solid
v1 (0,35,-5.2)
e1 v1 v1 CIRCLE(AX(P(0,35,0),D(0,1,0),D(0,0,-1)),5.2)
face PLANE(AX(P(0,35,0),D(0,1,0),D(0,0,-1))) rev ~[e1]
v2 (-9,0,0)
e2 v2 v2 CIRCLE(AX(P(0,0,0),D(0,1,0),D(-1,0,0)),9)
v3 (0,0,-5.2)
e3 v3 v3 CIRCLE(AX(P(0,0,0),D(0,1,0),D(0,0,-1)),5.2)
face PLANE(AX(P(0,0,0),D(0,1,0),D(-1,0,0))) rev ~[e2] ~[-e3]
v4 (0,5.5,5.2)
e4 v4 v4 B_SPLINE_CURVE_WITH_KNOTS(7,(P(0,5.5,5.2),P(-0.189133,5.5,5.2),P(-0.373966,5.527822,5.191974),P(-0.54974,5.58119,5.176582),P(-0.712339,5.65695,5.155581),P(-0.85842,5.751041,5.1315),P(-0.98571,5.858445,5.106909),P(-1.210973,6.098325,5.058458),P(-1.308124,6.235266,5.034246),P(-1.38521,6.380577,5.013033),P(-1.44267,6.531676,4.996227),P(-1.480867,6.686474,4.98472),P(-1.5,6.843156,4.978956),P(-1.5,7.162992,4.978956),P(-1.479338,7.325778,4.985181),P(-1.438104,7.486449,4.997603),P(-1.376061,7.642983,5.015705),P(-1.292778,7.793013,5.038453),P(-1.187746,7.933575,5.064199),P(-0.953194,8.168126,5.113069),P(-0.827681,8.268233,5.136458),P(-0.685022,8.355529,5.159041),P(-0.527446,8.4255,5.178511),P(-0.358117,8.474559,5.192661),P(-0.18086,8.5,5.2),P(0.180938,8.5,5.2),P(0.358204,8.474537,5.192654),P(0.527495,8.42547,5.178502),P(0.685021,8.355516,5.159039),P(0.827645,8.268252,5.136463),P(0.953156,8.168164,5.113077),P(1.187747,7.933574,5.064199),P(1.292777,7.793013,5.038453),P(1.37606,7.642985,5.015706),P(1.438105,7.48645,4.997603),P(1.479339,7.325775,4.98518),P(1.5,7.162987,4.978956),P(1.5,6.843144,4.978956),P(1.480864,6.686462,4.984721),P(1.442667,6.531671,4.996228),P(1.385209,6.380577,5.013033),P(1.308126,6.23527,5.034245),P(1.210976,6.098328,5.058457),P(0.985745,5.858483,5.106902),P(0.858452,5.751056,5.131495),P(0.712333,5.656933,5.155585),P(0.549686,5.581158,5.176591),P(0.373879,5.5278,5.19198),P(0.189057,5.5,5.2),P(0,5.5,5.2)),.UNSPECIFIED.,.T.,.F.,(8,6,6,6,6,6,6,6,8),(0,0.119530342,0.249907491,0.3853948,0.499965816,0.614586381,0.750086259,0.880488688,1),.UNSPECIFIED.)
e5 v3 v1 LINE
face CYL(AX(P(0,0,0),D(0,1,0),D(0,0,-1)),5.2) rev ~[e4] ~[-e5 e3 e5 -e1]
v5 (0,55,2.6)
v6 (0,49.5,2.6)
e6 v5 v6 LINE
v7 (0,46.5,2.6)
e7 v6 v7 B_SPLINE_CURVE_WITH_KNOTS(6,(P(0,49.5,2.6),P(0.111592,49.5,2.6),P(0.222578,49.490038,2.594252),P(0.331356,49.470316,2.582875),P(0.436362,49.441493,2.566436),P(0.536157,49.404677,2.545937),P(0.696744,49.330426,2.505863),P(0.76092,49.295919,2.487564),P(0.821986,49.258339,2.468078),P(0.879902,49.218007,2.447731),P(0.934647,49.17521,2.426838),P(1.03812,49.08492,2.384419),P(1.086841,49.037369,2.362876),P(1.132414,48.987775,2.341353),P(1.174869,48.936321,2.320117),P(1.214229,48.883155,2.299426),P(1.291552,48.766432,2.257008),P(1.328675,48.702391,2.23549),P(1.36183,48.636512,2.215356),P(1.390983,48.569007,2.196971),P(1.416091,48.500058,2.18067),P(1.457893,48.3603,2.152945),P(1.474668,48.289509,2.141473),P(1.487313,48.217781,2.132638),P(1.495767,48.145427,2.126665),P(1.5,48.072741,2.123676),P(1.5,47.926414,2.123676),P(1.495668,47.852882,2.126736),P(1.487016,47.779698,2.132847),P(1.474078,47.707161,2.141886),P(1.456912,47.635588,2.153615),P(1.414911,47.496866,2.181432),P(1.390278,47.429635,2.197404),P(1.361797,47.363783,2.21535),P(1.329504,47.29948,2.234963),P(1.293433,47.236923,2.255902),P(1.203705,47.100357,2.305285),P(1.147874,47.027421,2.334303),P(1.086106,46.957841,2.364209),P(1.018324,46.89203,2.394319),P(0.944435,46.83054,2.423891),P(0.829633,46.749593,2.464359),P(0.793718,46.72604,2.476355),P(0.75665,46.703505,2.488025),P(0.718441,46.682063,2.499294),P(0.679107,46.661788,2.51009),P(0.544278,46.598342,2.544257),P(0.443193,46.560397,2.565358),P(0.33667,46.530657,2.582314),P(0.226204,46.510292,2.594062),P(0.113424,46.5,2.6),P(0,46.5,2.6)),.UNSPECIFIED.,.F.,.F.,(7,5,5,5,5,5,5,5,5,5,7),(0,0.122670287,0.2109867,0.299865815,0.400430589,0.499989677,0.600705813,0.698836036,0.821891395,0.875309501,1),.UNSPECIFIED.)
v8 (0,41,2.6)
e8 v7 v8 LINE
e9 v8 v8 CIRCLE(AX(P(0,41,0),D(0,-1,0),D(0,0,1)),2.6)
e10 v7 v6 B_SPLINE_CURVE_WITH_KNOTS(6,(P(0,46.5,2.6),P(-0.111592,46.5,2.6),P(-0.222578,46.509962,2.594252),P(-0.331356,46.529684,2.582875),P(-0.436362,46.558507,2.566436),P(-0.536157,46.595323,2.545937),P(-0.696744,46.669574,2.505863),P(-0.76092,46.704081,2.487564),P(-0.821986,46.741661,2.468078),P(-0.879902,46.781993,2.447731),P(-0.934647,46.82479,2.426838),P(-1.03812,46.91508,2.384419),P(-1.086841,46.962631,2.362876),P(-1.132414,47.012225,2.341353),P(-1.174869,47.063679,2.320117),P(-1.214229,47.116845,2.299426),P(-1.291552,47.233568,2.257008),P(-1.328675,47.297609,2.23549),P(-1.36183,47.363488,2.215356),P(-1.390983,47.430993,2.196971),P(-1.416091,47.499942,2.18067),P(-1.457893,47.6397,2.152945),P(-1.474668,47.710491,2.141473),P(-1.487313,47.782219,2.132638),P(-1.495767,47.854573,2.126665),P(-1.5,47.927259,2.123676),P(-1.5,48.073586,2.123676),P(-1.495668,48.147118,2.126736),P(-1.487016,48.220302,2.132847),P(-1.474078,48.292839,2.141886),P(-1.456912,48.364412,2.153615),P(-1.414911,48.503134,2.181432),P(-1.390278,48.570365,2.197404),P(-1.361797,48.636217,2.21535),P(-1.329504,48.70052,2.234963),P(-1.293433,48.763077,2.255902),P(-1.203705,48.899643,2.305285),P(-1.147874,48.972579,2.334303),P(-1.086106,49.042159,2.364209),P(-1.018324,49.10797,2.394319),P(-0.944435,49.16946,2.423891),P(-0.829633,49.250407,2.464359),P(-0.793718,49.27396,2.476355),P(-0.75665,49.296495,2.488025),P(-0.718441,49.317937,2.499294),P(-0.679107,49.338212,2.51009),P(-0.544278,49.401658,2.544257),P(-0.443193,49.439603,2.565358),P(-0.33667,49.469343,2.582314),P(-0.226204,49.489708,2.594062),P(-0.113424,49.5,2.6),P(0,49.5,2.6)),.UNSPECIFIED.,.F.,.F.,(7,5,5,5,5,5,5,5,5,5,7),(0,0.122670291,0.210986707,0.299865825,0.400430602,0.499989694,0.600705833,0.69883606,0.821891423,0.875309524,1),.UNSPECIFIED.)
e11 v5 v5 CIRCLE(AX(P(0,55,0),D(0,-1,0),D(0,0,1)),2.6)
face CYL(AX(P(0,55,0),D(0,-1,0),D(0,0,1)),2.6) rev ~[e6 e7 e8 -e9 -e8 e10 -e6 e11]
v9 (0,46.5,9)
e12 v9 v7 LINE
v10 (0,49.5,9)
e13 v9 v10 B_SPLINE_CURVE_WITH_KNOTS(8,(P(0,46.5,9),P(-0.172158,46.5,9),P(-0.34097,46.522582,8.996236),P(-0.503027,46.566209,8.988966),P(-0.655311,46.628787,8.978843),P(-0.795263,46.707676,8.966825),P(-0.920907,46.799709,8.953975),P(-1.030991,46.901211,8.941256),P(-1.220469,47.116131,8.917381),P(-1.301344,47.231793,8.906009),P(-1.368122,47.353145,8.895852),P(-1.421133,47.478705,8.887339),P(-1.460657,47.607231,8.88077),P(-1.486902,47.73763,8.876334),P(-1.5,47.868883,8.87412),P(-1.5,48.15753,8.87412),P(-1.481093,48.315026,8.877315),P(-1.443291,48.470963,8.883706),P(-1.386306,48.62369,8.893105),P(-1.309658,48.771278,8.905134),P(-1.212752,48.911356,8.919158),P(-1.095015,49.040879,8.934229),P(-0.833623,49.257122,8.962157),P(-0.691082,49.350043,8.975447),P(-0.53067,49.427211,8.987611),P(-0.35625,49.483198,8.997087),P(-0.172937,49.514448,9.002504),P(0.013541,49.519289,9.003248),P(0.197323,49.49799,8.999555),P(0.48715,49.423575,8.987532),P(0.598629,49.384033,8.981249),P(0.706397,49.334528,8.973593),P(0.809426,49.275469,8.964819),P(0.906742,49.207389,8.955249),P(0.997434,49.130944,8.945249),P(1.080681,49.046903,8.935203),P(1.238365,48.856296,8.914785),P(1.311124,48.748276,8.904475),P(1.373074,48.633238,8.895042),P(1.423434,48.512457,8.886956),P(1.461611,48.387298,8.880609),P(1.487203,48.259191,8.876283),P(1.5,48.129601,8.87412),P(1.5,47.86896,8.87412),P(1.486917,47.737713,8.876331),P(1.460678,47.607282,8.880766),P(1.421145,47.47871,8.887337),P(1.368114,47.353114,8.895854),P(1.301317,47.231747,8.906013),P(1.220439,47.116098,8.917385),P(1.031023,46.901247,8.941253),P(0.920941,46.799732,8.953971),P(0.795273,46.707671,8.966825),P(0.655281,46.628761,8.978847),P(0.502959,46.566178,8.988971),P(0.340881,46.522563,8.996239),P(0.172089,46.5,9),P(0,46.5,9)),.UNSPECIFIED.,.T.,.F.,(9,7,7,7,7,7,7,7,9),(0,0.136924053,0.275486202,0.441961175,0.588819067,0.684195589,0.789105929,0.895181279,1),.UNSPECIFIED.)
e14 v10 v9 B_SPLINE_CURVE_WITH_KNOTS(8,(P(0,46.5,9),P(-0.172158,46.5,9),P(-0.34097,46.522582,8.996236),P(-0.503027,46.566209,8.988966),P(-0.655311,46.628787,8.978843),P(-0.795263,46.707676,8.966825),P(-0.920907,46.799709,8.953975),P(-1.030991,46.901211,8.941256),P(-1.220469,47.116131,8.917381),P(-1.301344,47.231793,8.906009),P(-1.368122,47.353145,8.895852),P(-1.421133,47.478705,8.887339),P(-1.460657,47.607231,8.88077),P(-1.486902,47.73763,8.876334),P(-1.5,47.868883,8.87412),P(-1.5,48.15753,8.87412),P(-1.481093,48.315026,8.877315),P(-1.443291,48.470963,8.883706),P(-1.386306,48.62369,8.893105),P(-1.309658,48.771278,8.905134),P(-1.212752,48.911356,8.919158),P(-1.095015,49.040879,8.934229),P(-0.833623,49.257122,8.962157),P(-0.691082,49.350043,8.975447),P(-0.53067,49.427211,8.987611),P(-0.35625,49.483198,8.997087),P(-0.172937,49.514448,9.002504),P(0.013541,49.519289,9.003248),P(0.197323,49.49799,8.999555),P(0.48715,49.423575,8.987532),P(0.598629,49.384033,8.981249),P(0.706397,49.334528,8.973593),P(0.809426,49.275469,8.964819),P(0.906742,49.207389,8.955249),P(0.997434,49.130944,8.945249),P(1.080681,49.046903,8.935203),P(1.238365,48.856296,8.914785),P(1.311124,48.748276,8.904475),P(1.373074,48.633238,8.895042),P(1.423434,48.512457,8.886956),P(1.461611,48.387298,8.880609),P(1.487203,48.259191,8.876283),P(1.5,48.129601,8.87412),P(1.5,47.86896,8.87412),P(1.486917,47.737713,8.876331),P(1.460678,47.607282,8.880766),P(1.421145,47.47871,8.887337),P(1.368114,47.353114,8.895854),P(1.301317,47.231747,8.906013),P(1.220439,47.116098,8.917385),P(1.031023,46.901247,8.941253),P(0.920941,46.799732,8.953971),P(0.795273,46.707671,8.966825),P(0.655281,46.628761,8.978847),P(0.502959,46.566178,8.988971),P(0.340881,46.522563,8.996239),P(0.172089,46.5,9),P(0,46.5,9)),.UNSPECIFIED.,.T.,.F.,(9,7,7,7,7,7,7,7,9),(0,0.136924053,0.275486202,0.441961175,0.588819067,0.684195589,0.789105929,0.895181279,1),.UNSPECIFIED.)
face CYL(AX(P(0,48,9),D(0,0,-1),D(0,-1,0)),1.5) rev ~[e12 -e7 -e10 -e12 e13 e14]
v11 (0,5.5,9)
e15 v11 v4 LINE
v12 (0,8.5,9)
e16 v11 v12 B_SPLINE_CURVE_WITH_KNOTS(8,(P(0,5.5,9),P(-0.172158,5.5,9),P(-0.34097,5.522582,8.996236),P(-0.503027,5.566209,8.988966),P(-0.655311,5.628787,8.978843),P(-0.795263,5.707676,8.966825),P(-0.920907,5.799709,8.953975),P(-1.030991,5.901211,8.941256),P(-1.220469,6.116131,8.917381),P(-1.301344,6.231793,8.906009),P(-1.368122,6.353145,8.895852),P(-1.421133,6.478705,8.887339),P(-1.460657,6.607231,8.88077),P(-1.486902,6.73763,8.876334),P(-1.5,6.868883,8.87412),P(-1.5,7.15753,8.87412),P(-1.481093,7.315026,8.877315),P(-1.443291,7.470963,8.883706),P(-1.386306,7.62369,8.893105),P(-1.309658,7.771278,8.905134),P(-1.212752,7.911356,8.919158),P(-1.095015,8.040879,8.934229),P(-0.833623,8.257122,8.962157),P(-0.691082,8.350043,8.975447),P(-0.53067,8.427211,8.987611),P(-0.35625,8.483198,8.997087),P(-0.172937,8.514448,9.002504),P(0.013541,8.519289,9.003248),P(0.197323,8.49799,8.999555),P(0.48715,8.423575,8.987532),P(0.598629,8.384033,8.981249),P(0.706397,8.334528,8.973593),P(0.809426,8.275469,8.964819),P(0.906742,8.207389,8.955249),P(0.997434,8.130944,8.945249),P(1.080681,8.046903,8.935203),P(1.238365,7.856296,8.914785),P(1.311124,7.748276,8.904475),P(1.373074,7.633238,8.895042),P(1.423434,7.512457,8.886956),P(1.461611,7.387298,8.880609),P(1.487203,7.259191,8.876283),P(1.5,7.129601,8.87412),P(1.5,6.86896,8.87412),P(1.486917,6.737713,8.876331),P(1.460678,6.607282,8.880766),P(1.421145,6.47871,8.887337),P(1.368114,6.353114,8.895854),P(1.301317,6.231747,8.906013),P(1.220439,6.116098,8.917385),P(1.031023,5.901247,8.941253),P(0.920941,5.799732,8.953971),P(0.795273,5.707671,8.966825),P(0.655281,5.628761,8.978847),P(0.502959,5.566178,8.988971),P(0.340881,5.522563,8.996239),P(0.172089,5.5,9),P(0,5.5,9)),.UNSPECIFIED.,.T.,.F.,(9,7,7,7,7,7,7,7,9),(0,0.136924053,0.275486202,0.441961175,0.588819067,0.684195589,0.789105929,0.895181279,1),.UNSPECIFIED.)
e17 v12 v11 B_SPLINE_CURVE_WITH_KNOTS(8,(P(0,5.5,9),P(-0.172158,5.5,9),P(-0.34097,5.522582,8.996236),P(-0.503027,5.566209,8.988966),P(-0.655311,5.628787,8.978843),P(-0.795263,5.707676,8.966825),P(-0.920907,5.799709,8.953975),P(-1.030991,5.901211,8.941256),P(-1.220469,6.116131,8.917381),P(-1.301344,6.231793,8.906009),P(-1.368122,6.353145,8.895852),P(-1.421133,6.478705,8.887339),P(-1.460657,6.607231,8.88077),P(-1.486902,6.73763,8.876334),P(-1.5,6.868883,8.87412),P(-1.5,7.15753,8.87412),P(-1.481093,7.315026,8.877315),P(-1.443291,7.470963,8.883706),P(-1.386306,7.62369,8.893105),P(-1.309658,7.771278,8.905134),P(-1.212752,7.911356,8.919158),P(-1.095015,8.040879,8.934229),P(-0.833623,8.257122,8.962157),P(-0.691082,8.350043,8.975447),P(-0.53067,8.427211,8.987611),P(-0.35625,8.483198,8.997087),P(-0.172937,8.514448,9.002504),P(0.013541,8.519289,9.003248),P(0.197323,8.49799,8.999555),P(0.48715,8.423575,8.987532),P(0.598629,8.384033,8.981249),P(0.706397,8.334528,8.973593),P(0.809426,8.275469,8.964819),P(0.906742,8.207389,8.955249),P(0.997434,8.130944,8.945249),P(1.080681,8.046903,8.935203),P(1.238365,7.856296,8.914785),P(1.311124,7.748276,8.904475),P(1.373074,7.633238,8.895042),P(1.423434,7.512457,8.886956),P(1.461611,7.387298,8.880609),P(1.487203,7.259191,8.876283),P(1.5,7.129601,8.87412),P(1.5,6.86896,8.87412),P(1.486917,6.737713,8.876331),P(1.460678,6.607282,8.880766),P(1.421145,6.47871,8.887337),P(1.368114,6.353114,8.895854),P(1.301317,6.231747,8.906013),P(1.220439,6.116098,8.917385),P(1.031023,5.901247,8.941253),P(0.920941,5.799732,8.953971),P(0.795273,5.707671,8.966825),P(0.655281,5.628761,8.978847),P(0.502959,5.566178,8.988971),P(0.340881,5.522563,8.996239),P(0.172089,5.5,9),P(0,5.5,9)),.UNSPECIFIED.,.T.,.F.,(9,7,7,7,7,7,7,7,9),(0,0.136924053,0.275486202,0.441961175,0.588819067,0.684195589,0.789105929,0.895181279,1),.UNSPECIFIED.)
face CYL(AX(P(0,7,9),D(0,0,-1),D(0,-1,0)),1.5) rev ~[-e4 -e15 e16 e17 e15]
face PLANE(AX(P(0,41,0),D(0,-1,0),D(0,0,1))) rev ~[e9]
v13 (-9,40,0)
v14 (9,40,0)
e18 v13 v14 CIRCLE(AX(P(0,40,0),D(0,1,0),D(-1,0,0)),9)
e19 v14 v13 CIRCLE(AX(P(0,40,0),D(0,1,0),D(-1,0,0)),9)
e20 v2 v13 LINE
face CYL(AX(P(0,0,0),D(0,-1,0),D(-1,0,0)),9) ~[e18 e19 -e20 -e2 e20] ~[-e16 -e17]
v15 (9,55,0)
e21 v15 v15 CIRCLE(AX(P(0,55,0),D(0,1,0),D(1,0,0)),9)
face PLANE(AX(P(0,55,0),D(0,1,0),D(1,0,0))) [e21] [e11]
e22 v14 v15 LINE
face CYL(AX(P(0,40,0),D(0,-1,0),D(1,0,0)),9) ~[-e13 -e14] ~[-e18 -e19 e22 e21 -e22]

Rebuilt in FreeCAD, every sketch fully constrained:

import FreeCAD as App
import Part
import Sketcher

doc = App.newDocument("Part")
body = doc.addObject("PartDesign::Body", "Body")

# Sketch on XZ plane
sketch1 = body.newObject("Sketcher::SketchObject", "Sketch")
sketch1.AttachmentSupport = (doc.getObject("XZ_Plane"), [""])
sketch1.MapMode = "FlatFace"
sketch1.addGeometry(Part.Circle(App.Vector(0, 0, 0), App.Vector(0, 0, 1), 9), False)
sketch1.addConstraint([
    Sketcher.Constraint("Coincident", 0, 3, -1, 1),
    Sketcher.Constraint("Diameter", 0, 18.0),
])
pad1 = body.newObject("PartDesign::Pad", "Pad")
pad1.Profile = sketch1
pad1.Length = 40
pad1.Reversed = True

# Sketch on XZ plane
sketch2 = body.newObject("Sketcher::SketchObject", "Sketch001")
sketch2.AttachmentSupport = (doc.getObject("XZ_Plane"), [""])
sketch2.MapMode = "FlatFace"
sketch2.addGeometry(Part.Circle(App.Vector(0, 0, 0), App.Vector(0, 0, 1), 5), False)
sketch2.addConstraint([
    Sketcher.Constraint("Coincident", 0, 3, -1, 1),
    Sketcher.Constraint("Diameter", 0, 10.4),
])
doc.recompute()
hole = body.newObject("PartDesign::Hole", "Hole")
hole.Profile = sketch2
hole.ThreadType = "None"
hole.Diameter = 10.4
hole.DepthType = "Dimension"
hole.Depth = 35
hole.DrillPoint = "Flat"

# Sketch on XY plane
sketch3 = body.newObject("Sketcher::SketchObject", "Sketch002")
sketch3.AttachmentSupport = (doc.getObject("XY_Plane"), [""])
sketch3.MapMode = "FlatFace"
sketch3.AttachmentOffset = App.Placement(App.Vector(0, 0, 9), App.Rotation())
sketch3.addGeometry(Part.Circle(App.Vector(0, 7, 0), App.Vector(0, 0, 1), 1.5), False)
sketch3.addConstraint([
    Sketcher.Constraint("PointOnObject", 0, 3, -2),
    Sketcher.Constraint("Diameter", 0, 3.0),
    Sketcher.Constraint("DistanceY", -1, 1, 0, 3, 7.0),
])
doc.recompute()
hole2 = body.newObject("PartDesign::Hole", "Hole001")
hole2.Profile = sketch3
hole2.ThreadType = "None"
hole2.Diameter = 3
hole2.DepthType = "Dimension"
hole2.Depth = 6
hole2.DrillPoint = "Flat"

# Sketch on XZ plane
sketch4 = body.newObject("Sketcher::SketchObject", "Sketch003")
sketch4.AttachmentSupport = (doc.getObject("XZ_Plane"), [""])
sketch4.MapMode = "FlatFace"
sketch4.AttachmentOffset = App.Placement(App.Vector(0, 0, -40), App.Rotation())
sketch4.addGeometry(Part.Circle(App.Vector(0, 0, 0), App.Vector(0, 0, 1), 9), False)
sketch4.addConstraint([
    Sketcher.Constraint("Coincident", 0, 3, -1, 1),
    Sketcher.Constraint("Diameter", 0, 18.0),
])
pad2 = body.newObject("PartDesign::Pad", "Pad001")
pad2.Profile = sketch4
pad2.Length = 15
pad2.Reversed = True

# Sketch on XZ plane
sketch5 = body.newObject("Sketcher::SketchObject", "Sketch004")
sketch5.AttachmentSupport = (doc.getObject("XZ_Plane"), [""])
sketch5.MapMode = "FlatFace"
sketch5.AttachmentOffset = App.Placement(App.Vector(0, 0, -55), App.Rotation())
sketch5.addGeometry(Part.Circle(App.Vector(0, 0, 0), App.Vector(0, 0, 1), 2.6), False)
sketch5.addConstraint([
    Sketcher.Constraint("Coincident", 0, 3, -1, 1),
    Sketcher.Constraint("Diameter", 0, 5.2),
])
doc.recompute()
hole3 = body.newObject("PartDesign::Hole", "Hole002")
hole3.Profile = sketch5
hole3.ThreadType = "None"
hole3.Diameter = 5.2
hole3.DepthType = "Dimension"
hole3.Depth = 14
hole3.DrillPoint = "Flat"
hole3.Reversed = True

# Sketch on XY plane
sketch6 = body.newObject("Sketcher::SketchObject", "Sketch005")
sketch6.AttachmentSupport = (doc.getObject("XY_Plane"), [""])
sketch6.MapMode = "FlatFace"
sketch6.AttachmentOffset = App.Placement(App.Vector(0, 0, 9), App.Rotation())
sketch6.addGeometry(Part.Circle(App.Vector(0, 48, 0), App.Vector(0, 0, 1), 1.5), False)
sketch6.addConstraint([
    Sketcher.Constraint("PointOnObject", 0, 3, -2),
    Sketcher.Constraint("Diameter", 0, 3.0),
    Sketcher.Constraint("DistanceY", -1, 1, 0, 3, 48.0),
])
doc.recompute()
hole4 = body.newObject("PartDesign::Hole", "Hole003")
hole4.Profile = sketch6
hole4.ThreadType = "None"
hole4.Diameter = 3
hole4.DepthType = "Dimension"
hole4.Depth = 8
hole4.DrillPoint = "Flat"

doc.recompute()
